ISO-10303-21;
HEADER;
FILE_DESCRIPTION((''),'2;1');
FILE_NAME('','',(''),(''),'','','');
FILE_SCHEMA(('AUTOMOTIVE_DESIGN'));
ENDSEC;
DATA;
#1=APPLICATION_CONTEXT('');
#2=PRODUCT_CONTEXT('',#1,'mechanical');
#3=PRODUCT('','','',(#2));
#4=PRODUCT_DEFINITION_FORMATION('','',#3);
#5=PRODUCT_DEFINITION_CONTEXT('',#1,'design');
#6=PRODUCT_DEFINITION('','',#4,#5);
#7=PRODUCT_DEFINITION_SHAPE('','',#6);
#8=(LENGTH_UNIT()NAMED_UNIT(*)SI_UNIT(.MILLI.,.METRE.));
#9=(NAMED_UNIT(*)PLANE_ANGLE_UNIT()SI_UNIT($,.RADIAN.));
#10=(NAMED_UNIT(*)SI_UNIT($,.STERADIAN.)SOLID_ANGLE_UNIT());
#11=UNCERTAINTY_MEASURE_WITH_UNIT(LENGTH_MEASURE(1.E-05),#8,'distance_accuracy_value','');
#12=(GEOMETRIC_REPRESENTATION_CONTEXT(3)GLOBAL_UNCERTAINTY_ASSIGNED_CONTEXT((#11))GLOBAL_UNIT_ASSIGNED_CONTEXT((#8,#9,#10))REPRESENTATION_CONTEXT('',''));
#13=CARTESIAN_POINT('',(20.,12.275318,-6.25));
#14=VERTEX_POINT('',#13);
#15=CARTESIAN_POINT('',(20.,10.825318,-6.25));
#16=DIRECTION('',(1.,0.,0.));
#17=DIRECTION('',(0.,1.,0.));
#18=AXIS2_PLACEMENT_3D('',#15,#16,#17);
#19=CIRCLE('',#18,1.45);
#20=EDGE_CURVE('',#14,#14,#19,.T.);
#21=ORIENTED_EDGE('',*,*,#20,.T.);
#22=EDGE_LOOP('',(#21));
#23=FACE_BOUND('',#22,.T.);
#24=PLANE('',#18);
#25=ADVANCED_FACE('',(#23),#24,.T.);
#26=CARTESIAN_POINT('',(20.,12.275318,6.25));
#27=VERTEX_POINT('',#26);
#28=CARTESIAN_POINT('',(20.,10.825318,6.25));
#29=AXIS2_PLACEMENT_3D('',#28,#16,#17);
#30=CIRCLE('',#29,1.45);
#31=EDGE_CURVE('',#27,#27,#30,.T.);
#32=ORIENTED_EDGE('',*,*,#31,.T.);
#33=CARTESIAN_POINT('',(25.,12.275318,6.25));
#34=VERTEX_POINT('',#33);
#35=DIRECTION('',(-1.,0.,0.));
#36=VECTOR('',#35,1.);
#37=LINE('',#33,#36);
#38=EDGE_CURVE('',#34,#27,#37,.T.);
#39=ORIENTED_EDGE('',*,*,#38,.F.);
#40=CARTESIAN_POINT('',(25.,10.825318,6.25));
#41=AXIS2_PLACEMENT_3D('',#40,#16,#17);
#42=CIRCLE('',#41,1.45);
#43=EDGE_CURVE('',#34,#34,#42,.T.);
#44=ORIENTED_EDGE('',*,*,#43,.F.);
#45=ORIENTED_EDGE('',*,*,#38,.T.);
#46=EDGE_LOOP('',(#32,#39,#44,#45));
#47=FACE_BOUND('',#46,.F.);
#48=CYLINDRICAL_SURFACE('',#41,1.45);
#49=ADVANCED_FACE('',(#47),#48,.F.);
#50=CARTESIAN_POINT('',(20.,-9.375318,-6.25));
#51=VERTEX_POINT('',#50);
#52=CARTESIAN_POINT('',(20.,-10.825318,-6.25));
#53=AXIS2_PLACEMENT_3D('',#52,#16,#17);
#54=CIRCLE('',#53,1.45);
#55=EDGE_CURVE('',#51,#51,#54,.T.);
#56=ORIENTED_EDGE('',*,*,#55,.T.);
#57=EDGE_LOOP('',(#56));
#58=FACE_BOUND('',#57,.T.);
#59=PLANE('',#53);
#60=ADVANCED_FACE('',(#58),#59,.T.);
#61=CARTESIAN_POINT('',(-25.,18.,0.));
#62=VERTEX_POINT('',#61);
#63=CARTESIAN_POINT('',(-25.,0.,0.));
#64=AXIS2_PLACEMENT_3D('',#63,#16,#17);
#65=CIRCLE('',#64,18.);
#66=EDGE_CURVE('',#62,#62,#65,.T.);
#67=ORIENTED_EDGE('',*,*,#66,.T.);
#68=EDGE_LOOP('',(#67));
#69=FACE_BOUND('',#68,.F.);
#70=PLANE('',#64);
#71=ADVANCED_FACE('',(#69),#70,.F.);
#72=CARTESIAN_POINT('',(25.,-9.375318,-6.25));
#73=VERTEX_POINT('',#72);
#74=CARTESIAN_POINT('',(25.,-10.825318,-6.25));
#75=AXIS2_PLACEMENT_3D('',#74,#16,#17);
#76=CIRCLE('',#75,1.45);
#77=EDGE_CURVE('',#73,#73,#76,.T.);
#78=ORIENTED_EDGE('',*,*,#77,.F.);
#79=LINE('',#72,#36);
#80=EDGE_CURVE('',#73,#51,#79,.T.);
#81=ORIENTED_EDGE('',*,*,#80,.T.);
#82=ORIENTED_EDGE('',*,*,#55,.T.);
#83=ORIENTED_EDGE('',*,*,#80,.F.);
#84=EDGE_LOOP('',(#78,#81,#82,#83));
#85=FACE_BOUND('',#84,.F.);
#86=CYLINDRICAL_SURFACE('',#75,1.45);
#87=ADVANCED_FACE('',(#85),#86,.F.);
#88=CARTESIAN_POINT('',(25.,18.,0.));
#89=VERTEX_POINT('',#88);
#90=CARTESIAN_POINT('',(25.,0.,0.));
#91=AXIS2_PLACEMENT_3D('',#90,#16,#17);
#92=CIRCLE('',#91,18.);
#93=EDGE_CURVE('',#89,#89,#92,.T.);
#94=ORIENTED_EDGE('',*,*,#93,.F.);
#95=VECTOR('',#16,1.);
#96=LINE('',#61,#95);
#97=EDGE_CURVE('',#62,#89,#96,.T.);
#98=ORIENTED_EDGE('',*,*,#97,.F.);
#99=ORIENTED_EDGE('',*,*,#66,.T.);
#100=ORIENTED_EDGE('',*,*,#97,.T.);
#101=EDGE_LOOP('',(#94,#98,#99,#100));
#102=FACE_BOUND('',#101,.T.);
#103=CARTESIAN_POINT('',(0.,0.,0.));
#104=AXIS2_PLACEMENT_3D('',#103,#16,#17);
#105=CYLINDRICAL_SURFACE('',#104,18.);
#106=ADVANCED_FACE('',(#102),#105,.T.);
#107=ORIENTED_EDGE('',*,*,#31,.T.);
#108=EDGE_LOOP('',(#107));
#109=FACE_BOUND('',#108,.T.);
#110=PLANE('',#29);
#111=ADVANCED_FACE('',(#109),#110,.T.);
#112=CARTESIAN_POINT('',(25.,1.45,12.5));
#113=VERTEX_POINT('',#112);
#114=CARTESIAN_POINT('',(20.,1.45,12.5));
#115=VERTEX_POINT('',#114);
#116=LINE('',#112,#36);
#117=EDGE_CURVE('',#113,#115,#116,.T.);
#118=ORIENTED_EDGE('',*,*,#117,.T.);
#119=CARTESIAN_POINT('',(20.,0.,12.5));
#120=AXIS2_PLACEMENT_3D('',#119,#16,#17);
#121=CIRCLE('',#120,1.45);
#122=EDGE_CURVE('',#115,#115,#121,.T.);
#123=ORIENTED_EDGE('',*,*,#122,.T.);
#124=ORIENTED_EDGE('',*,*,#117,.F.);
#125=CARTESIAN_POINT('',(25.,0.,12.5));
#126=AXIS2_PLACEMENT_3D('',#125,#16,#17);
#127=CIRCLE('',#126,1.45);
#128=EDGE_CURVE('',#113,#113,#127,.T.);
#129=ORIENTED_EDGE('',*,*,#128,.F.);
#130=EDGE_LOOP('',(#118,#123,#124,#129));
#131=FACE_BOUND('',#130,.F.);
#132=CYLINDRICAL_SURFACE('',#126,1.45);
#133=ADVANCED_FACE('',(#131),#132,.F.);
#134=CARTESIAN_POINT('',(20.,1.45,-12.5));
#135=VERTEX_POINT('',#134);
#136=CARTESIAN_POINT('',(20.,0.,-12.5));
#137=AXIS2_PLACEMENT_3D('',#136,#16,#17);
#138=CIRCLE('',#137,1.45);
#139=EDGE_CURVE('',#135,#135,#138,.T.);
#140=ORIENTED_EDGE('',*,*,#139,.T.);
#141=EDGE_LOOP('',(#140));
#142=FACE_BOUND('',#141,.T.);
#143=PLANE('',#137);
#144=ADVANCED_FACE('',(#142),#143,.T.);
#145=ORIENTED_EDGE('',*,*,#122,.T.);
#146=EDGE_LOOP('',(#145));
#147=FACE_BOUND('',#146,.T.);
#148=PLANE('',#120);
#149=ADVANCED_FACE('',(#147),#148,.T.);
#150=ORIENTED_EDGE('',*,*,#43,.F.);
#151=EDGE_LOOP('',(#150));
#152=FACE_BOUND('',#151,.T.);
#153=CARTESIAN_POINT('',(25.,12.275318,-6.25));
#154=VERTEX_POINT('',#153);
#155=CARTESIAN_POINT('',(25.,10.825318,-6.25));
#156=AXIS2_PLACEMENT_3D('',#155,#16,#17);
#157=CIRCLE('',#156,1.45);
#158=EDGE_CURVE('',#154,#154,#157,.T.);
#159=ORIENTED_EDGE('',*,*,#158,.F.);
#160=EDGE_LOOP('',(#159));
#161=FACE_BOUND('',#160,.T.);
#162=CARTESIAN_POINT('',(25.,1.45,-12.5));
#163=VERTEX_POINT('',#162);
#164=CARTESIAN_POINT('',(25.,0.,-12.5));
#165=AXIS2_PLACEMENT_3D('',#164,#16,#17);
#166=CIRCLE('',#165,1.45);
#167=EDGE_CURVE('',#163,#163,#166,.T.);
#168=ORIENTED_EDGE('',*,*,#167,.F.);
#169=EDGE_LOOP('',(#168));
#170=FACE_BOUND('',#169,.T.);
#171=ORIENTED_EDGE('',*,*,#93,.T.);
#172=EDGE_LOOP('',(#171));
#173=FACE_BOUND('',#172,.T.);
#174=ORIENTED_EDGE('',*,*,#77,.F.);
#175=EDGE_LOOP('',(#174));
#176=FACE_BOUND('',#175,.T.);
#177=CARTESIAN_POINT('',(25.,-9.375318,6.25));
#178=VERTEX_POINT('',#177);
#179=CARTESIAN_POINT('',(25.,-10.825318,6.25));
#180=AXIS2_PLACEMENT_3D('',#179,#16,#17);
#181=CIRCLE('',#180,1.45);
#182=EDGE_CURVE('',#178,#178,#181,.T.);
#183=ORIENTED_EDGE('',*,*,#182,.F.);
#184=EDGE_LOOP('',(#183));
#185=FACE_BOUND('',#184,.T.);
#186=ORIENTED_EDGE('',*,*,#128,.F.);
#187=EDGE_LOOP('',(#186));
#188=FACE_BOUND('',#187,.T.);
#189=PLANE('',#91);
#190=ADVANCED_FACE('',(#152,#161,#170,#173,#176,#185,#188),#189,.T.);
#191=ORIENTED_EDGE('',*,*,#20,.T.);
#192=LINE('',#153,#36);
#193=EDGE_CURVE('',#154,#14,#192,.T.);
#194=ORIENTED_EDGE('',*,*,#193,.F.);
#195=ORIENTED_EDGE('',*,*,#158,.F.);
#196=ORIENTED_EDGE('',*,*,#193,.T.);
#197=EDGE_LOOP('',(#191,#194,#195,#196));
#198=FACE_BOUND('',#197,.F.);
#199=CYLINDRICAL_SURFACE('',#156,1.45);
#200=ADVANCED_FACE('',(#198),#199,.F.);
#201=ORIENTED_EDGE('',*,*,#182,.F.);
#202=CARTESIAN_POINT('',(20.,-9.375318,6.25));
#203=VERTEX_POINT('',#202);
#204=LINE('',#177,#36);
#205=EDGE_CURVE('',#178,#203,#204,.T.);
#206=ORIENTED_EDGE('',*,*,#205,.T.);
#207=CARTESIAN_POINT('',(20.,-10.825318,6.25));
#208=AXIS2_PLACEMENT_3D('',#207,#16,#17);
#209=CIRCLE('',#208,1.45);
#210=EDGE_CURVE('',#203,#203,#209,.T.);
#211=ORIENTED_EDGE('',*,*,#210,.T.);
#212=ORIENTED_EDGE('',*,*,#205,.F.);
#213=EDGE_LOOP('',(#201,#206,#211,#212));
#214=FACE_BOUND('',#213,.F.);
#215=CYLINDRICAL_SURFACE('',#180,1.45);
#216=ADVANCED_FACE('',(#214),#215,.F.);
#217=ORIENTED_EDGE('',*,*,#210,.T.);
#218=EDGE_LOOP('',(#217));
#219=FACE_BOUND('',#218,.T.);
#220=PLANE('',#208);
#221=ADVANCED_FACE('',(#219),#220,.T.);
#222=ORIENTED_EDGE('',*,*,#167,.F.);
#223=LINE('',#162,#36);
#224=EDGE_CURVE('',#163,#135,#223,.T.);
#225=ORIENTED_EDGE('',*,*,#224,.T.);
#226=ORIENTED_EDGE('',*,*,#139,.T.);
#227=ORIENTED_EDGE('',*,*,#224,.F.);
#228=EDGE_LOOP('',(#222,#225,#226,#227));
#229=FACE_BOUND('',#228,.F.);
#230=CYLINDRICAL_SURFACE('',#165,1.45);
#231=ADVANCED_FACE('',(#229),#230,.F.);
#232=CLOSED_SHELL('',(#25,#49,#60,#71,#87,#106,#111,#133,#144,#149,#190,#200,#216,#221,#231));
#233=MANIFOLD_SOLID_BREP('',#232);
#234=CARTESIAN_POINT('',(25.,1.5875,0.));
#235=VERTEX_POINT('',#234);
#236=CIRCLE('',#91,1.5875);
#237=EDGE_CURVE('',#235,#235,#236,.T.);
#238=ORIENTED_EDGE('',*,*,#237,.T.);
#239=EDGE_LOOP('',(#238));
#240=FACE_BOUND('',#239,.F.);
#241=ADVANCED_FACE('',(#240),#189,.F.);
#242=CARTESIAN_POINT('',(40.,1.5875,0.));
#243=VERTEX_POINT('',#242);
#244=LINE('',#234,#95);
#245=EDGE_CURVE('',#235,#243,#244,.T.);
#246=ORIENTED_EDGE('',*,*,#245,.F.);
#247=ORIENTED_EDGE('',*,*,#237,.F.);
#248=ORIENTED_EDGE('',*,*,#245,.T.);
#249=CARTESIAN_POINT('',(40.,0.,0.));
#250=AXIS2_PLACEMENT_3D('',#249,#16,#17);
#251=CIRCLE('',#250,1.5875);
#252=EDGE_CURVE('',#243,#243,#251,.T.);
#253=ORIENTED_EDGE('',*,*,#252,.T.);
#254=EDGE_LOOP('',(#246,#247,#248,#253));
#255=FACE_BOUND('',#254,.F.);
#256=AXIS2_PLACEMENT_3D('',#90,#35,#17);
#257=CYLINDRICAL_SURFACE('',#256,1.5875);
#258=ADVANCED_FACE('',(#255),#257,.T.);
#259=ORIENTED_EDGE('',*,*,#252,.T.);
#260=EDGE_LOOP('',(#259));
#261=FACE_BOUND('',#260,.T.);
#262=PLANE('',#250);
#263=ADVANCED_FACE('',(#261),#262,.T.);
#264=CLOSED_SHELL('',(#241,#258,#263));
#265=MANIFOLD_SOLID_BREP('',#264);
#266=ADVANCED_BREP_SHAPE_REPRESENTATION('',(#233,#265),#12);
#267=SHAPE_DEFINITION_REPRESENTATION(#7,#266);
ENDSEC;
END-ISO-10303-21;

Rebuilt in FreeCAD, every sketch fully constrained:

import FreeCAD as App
import Part
import Sketcher
Q = App.Units.Quantity

doc = App.newDocument("Part")
body = doc.addObject("PartDesign::Body", "Body")

# Sketch on YZ plane
sketch1 = body.newObject("Sketcher::SketchObject", "Sketch")
sketch1.AttachmentSupport = (doc.getObject("YZ_Plane"), [""])
sketch1.MapMode = "FlatFace"
sketch1.addGeometry(Part.Circle(App.Vector(0, 0, 0), App.Vector(0, 0, 1), 18), False)
sketch1.addConstraint(Sketcher.Constraint("Coincident", 0, 3, -1, 1))
sketch1.addConstraint(Sketcher.Constraint("Diameter", 0, Q("36 mm")))
pad1 = body.newObject("PartDesign::Pad", "Pad")
pad1.Profile = sketch1
pad1.Length = 50
pad1.Midplane = True

# Sketch on YZ plane
sketch2 = body.newObject("Sketcher::SketchObject", "Sketch001")
sketch2.AttachmentSupport = (doc.getObject("YZ_Plane"), [""])
sketch2.MapMode = "FlatFace"
sketch2.AttachmentOffset = App.Placement(App.Vector(0, 0, 25), App.Rotation())
sketch2.addGeometry(Part.Circle(App.Vector(-10.8, 6.2, 0), App.Vector(0, 0, 1), 1.4), False)
sketch2.addGeometry(Part.Circle(App.Vector(0, 12.5, 0), App.Vector(0, 0, 1), 1.4), False)
sketch2.addGeometry(Part.Circle(App.Vector(10.8, 6.2, 0), App.Vector(0, 0, 1), 1.4), False)
sketch2.addGeometry(Part.Circle(App.Vector(10.8, -6.2, 0), App.Vector(0, 0, 1), 1.4), False)
sketch2.addGeometry(Part.Circle(App.Vector(0, -12.5, 0), App.Vector(0, 0, 1), 1.4), False)
sketch2.addGeometry(Part.Circle(App.Vector(-10.8, -6.2, 0), App.Vector(0, 0, 1), 1.4), False)
sketch2.addConstraint(Sketcher.Constraint("Equal", 0, 1))
sketch2.addConstraint(Sketcher.Constraint("Equal", 1, 2))
sketch2.addConstraint(Sketcher.Constraint("Equal", 2, 3))
sketch2.addConstraint(Sketcher.Constraint("Equal", 3, 4))
sketch2.addConstraint(Sketcher.Constraint("Equal", 4, 5))
sketch2.addConstraint(Sketcher.Constraint("Symmetric", 0, 3, 3, 3, -1, 1))
sketch2.addConstraint(Sketcher.Constraint("Symmetric", 1, 3, 4, 3, -1, 1))
sketch2.addConstraint(Sketcher.Constraint("Symmetric", 2, 3, 5, 3, -1, 1))
sketch2.addConstraint(Sketcher.Constraint("Symmetric", 0, 3, 2, 3, -2))
sketch2.addConstraint(Sketcher.Constraint("PointOnObject", 1, 3, -2))
sketch2.addConstraint(Sketcher.Constraint("Diameter", 0, Q("2.9 mm")))
sketch2.addConstraint(Sketcher.Constraint("DistanceY", 4, 3, 1, 3, Q("25 mm")))
sketch2.addConstraint(Sketcher.Constraint("DistanceY", 3, 3, 2, 3, Q("12.5 mm")))
sketch2.addConstraint(Sketcher.Constraint("DistanceX", 0, 3, -1, 1, Q("10.825318 mm")))
pocket1 = body.newObject("PartDesign::Pocket", "Pocket")
pocket1.Profile = sketch2
pocket1.Length = 5
body2 = doc.addObject("PartDesign::Body", "Body001")

# Sketch on YZ plane
sketch3 = body2.newObject("Sketcher::SketchObject", "Sketch002")
sketch3.AttachmentSupport = (doc.getObject("YZ_Plane001"), [""])
sketch3.MapMode = "FlatFace"
sketch3.AttachmentOffset = App.Placement(App.Vector(0, 0, 25), App.Rotation())
sketch3.addGeometry(Part.Circle(App.Vector(0, 0, 0), App.Vector(0, 0, 1), 1.6), False)
sketch3.addConstraint(Sketcher.Constraint("Coincident", 0, 3, -1, 1))
sketch3.addConstraint(Sketcher.Constraint("Diameter", 0, Q("3.175 mm")))
pad2 = body2.newObject("PartDesign::Pad", "Pad001")
pad2.Profile = sketch3
pad2.Length = 15

doc.recompute()
